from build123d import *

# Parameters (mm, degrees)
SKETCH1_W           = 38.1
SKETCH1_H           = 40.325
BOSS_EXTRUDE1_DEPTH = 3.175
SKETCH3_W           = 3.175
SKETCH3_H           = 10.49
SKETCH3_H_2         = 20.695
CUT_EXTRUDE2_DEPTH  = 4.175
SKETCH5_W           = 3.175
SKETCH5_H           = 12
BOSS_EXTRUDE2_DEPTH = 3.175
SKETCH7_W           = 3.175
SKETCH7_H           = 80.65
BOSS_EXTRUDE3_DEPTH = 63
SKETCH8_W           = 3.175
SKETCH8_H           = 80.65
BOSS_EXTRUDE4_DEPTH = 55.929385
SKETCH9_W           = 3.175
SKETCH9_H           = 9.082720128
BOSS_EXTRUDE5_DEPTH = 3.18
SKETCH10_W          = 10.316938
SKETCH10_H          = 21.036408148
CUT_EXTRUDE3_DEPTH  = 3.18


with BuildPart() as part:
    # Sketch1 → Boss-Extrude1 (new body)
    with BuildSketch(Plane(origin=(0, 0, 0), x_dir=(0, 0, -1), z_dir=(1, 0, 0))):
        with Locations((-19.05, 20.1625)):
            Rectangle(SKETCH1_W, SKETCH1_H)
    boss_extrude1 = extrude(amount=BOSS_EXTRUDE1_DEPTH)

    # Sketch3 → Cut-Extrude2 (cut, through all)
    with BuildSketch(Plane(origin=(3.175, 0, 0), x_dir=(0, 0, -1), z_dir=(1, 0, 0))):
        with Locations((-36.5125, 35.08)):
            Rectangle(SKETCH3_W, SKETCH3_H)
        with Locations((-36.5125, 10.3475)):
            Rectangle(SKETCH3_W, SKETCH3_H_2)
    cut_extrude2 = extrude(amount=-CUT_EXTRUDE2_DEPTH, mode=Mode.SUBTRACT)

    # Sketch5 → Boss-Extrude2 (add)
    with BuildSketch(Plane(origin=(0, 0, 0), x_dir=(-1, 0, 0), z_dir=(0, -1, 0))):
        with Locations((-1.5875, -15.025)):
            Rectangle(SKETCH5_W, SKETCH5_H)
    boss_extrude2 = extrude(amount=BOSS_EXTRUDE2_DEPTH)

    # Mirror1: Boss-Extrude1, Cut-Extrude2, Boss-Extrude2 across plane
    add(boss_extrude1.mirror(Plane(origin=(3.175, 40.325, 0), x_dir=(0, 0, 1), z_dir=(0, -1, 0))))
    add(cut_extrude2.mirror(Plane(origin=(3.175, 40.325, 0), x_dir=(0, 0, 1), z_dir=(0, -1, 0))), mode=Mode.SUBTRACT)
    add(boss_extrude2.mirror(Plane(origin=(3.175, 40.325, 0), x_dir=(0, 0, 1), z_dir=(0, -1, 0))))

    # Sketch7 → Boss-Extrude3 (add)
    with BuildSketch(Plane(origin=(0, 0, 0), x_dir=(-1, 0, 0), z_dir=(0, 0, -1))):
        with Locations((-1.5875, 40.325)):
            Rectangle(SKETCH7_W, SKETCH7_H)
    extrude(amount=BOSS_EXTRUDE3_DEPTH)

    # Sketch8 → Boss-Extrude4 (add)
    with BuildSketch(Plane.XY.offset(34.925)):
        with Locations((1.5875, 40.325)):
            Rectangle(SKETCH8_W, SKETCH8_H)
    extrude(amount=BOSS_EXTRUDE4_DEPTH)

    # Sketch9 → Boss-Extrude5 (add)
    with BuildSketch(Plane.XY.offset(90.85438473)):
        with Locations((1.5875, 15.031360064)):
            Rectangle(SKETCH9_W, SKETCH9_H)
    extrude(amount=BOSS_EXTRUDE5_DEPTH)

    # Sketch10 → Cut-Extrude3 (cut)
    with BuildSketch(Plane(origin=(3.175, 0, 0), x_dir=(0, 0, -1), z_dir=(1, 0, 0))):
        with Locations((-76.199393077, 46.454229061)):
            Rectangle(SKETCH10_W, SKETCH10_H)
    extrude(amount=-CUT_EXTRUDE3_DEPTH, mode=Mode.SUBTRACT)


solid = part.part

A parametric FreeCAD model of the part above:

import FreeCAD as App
import Part
import Sketcher

doc = App.newDocument("Part")
body = doc.addObject("PartDesign::Body", "Body")

# Sketch on YZ plane
sketch1 = body.newObject("Sketcher::SketchObject", "Sketch")
sketch1.AttachmentSupport = (doc.getObject("YZ_Plane"), [""])
sketch1.MapMode = "FlatFace"
sketch1.addGeometry([
    Part.LineSegment(App.Vector(40, 38, 0), App.Vector(0, 38, 0)),
    Part.LineSegment(App.Vector(0, 38, 0), App.Vector(0, 0, 0)),
    Part.LineSegment(App.Vector(0, 0, 0), App.Vector(40, 0, 0)),
    Part.LineSegment(App.Vector(40, 0, 0), App.Vector(40, 38, 0)),
], False)
sketch1.addConstraint([
    Sketcher.Constraint("Coincident", 0, 2, 1, 1),
    Sketcher.Constraint("Coincident", 1, 2, 2, 1),
    Sketcher.Constraint("Coincident", 2, 2, 3, 1),
    Sketcher.Constraint("Coincident", 3, 2, 0, 1),
    Sketcher.Constraint("Horizontal", 0),
    Sketcher.Constraint("Vertical", 1),
    Sketcher.Constraint("Horizontal", 2),
    Sketcher.Constraint("Vertical", 3),
    Sketcher.Constraint("Coincident", 1, 2, -1, 1),
    Sketcher.Constraint("DistanceY", 1, 2, 1, 1, 38.1),
    Sketcher.Constraint("DistanceX", 0, 2, 0, 1, 40.325),
])
pad1 = body.newObject("PartDesign::Pad", "Pad")
pad1.Profile = sketch1
pad1.Length = 3.175

# Sketch on YZ plane
sketch2 = body.newObject("Sketcher::SketchObject", "Sketch001")
sketch2.AttachmentSupport = (doc.getObject("YZ_Plane"), [""])
sketch2.MapMode = "FlatFace"
sketch2.AttachmentOffset = App.Placement(App.Vector(0, 0, 3.175), App.Rotation())
sketch2.addGeometry([
    Part.LineSegment(App.Vector(40.3, 38.1, 0), App.Vector(29.8, 38.1, 0)),  # 0
    Part.LineSegment(App.Vector(29.8, 38.1, 0), App.Vector(29.8, 34.9, 0)),  # 1
    Part.LineSegment(App.Vector(29.8, 34.9, 0), App.Vector(40.3, 34.9, 0)),  # 2
    Part.LineSegment(App.Vector(40.3, 34.9, 0), App.Vector(40.3, 38.1, 0)),  # 3
    Part.LineSegment(App.Vector(20.7, 38.1, 0), App.Vector(0, 38.1, 0)),  # 4
    Part.LineSegment(App.Vector(0, 38.1, 0), App.Vector(0, 34.9, 0)),  # 5
    Part.LineSegment(App.Vector(0, 34.9, 0), App.Vector(20.7, 34.9, 0)),  # 6
    Part.LineSegment(App.Vector(20.7, 34.9, 0), App.Vector(20.7, 38.1, 0)),  # 7
], False)
sketch2.addConstraint([
    Sketcher.Constraint("Coincident", 0, 2, 1, 1),
    Sketcher.Constraint("Coincident", 1, 2, 2, 1),
    Sketcher.Constraint("Coincident", 2, 2, 3, 1),
    Sketcher.Constraint("Coincident", 3, 2, 0, 1),
    Sketcher.Constraint("Coincident", 4, 2, 5, 1),
    Sketcher.Constraint("Coincident", 5, 2, 6, 1),
    Sketcher.Constraint("Coincident", 6, 2, 7, 1),
    Sketcher.Constraint("Coincident", 7, 2, 4, 1),
    Sketcher.Constraint("Horizontal", 0),
    Sketcher.Constraint("Vertical", 1),
    Sketcher.Constraint("Horizontal", 2),
    Sketcher.Constraint("Vertical", 3),
    Sketcher.Constraint("Horizontal", 4),
    Sketcher.Constraint("Vertical", 5),
    Sketcher.Constraint("Horizontal", 6),
    Sketcher.Constraint("Vertical", 7),
    Sketcher.Constraint("PointOnObject", 4, 2, -2),
    Sketcher.Constraint("Horizontal", 3, 2, 4, 2),
    Sketcher.Constraint("Horizontal", 2, 2, 5, 2),
    Sketcher.Constraint("DistanceX", 0, 2, 0, 1, 10.49),
    Sketcher.Constraint("DistanceY", -1, 1, 0, 2, 38.1),
    Sketcher.Constraint("DistanceX", 4, 2, 4, 1, 20.695),
    Sketcher.Constraint("DistanceY", 1, 2, 1, 1, 3.175),
    Sketcher.Constraint("DistanceX", 6, 2, 1, 2, 9.14),
])
pocket1 = body.newObject("PartDesign::Pocket", "Pocket")
pocket1.Profile = sketch2
pocket1.Type = "ThroughAll"

# Sketch on XZ plane
sketch3 = body.newObject("Sketcher::SketchObject", "Sketch002")
sketch3.AttachmentSupport = (doc.getObject("XZ_Plane"), [""])
sketch3.MapMode = "FlatFace"
sketch3.addGeometry([
    Part.LineSegment(App.Vector(3.2, 9, 0), App.Vector(3.2, 21, 0)),
    Part.LineSegment(App.Vector(3.2, 21, 0), App.Vector(0, 21, 0)),
    Part.LineSegment(App.Vector(0, 21, 0), App.Vector(0, 9, 0)),
    Part.LineSegment(App.Vector(0, 9, 0), App.Vector(3.2, 9, 0)),
], False)
sketch3.addConstraint([
    Sketcher.Constraint("Coincident", 0, 2, 1, 1),
    Sketcher.Constraint("Coincident", 1, 2, 2, 1),
    Sketcher.Constraint("Coincident", 2, 2, 3, 1),
    Sketcher.Constraint("Coincident", 3, 2, 0, 1),
    Sketcher.Constraint("Vertical", 0),
    Sketcher.Constraint("Horizontal", 1),
    Sketcher.Constraint("Vertical", 2),
    Sketcher.Constraint("Horizontal", 3),
    Sketcher.Constraint("PointOnObject", 1, 2, -2),
    Sketcher.Constraint("DistanceY", 0, 1, 0, 2, 12.0),
    Sketcher.Constraint("DistanceX", 1, 2, 1, 1, 3.175),
    Sketcher.Constraint("DistanceY", -1, 1, 0, 2, 21.025),
])
pad2 = body.newObject("PartDesign::Pad", "Pad001")
pad2.Profile = sketch3
pad2.Length = 3.175
doc.recompute()

datumplane = body.newObject("PartDesign::Plane", "DatumPlane")
datumplane.AttachmentSupport = (doc.getObject("XZ_Plane"), [""])
datumplane.MapMode = "FlatFace"
datumplane.AttachmentOffset = App.Placement(App.Vector(0, 0, -40.325), App.Rotation())
mirrored = body.newObject("PartDesign::Mirrored", "Mirrored")
mirrored.Originals = [pad1, pocket1, pad2]
mirrored.MirrorPlane = (datumplane, [""])
body.Tip = mirrored

# Sketch on XY plane
sketch4 = body.newObject("Sketcher::SketchObject", "Sketch003")
sketch4.AttachmentSupport = (doc.getObject("XY_Plane"), [""])
sketch4.MapMode = "FlatFace"
sketch4.addGeometry([
    Part.LineSegment(App.Vector(3.2, 80.7, 0), App.Vector(3.2, 0, 0)),
    Part.LineSegment(App.Vector(3.2, 0, 0), App.Vector(0, 0, 0)),
    Part.LineSegment(App.Vector(0, 0, 0), App.Vector(0, 80.7, 0)),
    Part.LineSegment(App.Vector(0, 80.7, 0), App.Vector(3.2, 80.7, 0)),
], False)
sketch4.addConstraint([
    Sketcher.Constraint("Coincident", 0, 2, 1, 1),
    Sketcher.Constraint("Coincident", 1, 2, 2, 1),
    Sketcher.Constraint("Coincident", 2, 2, 3, 1),
    Sketcher.Constraint("Coincident", 3, 2, 0, 1),
    Sketcher.Constraint("Vertical", 0),
    Sketcher.Constraint("Horizontal", 1),
    Sketcher.Constraint("Vertical", 2),
    Sketcher.Constraint("Horizontal", 3),
    Sketcher.Constraint("Coincident", 1, 2, -1, 1),
    Sketcher.Constraint("DistanceY", 0, 2, 0, 1, 80.65),
    Sketcher.Constraint("DistanceX", 1, 2, 1, 1, 3.175),
])
pad3 = body.newObject("PartDesign::Pad", "Pad002")
pad3.Profile = sketch4
pad3.Length = 63
pad3.Reversed = True

# Sketch on XY plane
sketch5 = body.newObject("Sketcher::SketchObject", "Sketch004")
sketch5.AttachmentSupport = (doc.getObject("XY_Plane"), [""])
sketch5.MapMode = "FlatFace"
sketch5.AttachmentOffset = App.Placement(App.Vector(0, 0, 34.925), App.Rotation())
sketch5.addGeometry([
    Part.LineSegment(App.Vector(0, 80.7, 0), App.Vector(0, 0, 0)),
    Part.LineSegment(App.Vector(0, 0, 0), App.Vector(3.2, 0, 0)),
    Part.LineSegment(App.Vector(3.2, 0, 0), App.Vector(3.2, 80.7, 0)),
    Part.LineSegment(App.Vector(3.2, 80.7, 0), App.Vector(0, 80.7, 0)),
], False)
sketch5.addConstraint([
    Sketcher.Constraint("Coincident", 0, 2, 1, 1),
    Sketcher.Constraint("Coincident", 1, 2, 2, 1),
    Sketcher.Constraint("Coincident", 2, 2, 3, 1),
    Sketcher.Constraint("Coincident", 3, 2, 0, 1),
    Sketcher.Constraint("Vertical", 0),
    Sketcher.Constraint("Horizontal", 1),
    Sketcher.Constraint("Vertical", 2),
    Sketcher.Constraint("Horizontal", 3),
    Sketcher.Constraint("Coincident", 0, 2, -1, 1),
    Sketcher.Constraint("DistanceY", 0, 2, 0, 1, 80.65),
    Sketcher.Constraint("DistanceX", 1, 1, 1, 2, 3.175),
])
pad4 = body.newObject("PartDesign::Pad", "Pad003")
pad4.Profile = sketch5
pad4.Length = 55.929385

# Sketch on XY plane
sketch6 = body.newObject("Sketcher::SketchObject", "Sketch005")
sketch6.AttachmentSupport = (doc.getObject("XY_Plane"), [""])
sketch6.MapMode = "FlatFace"
sketch6.AttachmentOffset = App.Placement(App.Vector(0, 0, 90.854385), App.Rotation())
sketch6.addGeometry([
    Part.LineSegment(App.Vector(0, 19.6, 0), App.Vector(0, 10.5, 0)),
    Part.LineSegment(App.Vector(0, 10.5, 0), App.Vector(3.2, 10.5, 0)),
    Part.LineSegment(App.Vector(3.2, 10.5, 0), App.Vector(3.2, 19.6, 0)),
    Part.LineSegment(App.Vector(3.2, 19.6, 0), App.Vector(0, 19.6, 0)),
], False)
sketch6.addConstraint([
    Sketcher.Constraint("Coincident", 0, 2, 1, 1),
    Sketcher.Constraint("Coincident", 1, 2, 2, 1),
    Sketcher.Constraint("Coincident", 2, 2, 3, 1),
    Sketcher.Constraint("Coincident", 3, 2, 0, 1),
    Sketcher.Constraint("Vertical", 0),
    Sketcher.Constraint("Horizontal", 1),
    Sketcher.Constraint("Vertical", 2),
    Sketcher.Constraint("Horizontal", 3),
    Sketcher.Constraint("PointOnObject", 0, 2, -2),
    Sketcher.Constraint("DistanceX", 1, 1, 1, 2, 3.175),
    Sketcher.Constraint("DistanceY", -1, 1, 0, 2, 10.49),
    Sketcher.Constraint("DistanceY", 0, 2, 0, 1, 9.08272),
])
pad5 = body.newObject("PartDesign::Pad", "Pad004")
pad5.Profile = sketch6
pad5.Length = 3.18

# Sketch on YZ plane
sketch7 = body.newObject("Sketcher::SketchObject", "Sketch006")
sketch7.AttachmentSupport = (doc.getObject("YZ_Plane"), [""])
sketch7.MapMode = "FlatFace"
sketch7.AttachmentOffset = App.Placement(App.Vector(0, 0, 3.175), App.Rotation())
sketch7.addGeometry([
    Part.LineSegment(App.Vector(57, 81, 0), App.Vector(36, 81, 0)),
    Part.LineSegment(App.Vector(36, 81, 0), App.Vector(36, 71, 0)),
    Part.LineSegment(App.Vector(36, 71, 0), App.Vector(57, 71, 0)),
    Part.LineSegment(App.Vector(57, 71, 0), App.Vector(57, 81, 0)),
], False)
sketch7.addConstraint([
    Sketcher.Constraint("Coincident", 0, 2, 1, 1),
    Sketcher.Constraint("Coincident", 1, 2, 2, 1),
    Sketcher.Constraint("Coincident", 2, 2, 3, 1),
    Sketcher.Constraint("Coincident", 3, 2, 0, 1),
    Sketcher.Constraint("Horizontal", 0),
    Sketcher.Constraint("Vertical", 1),
    Sketcher.Constraint("Horizontal", 2),
    Sketcher.Constraint("Vertical", 3),
    Sketcher.Constraint("DistanceX", 0, 2, 0, 1, 21.036408),
    Sketcher.Constraint("DistanceY", 1, 2, 1, 1, 10.316938),
    Sketcher.Constraint("DistanceX", -1, 1, 0, 2, 35.936025),
    Sketcher.Constraint("DistanceY", -1, 1, 0, 2, 81.357862),
])
pocket2 = body.newObject("PartDesign::Pocket", "Pocket001")
pocket2.Profile = sketch7
pocket2.Length = 3.18

doc.recompute()
